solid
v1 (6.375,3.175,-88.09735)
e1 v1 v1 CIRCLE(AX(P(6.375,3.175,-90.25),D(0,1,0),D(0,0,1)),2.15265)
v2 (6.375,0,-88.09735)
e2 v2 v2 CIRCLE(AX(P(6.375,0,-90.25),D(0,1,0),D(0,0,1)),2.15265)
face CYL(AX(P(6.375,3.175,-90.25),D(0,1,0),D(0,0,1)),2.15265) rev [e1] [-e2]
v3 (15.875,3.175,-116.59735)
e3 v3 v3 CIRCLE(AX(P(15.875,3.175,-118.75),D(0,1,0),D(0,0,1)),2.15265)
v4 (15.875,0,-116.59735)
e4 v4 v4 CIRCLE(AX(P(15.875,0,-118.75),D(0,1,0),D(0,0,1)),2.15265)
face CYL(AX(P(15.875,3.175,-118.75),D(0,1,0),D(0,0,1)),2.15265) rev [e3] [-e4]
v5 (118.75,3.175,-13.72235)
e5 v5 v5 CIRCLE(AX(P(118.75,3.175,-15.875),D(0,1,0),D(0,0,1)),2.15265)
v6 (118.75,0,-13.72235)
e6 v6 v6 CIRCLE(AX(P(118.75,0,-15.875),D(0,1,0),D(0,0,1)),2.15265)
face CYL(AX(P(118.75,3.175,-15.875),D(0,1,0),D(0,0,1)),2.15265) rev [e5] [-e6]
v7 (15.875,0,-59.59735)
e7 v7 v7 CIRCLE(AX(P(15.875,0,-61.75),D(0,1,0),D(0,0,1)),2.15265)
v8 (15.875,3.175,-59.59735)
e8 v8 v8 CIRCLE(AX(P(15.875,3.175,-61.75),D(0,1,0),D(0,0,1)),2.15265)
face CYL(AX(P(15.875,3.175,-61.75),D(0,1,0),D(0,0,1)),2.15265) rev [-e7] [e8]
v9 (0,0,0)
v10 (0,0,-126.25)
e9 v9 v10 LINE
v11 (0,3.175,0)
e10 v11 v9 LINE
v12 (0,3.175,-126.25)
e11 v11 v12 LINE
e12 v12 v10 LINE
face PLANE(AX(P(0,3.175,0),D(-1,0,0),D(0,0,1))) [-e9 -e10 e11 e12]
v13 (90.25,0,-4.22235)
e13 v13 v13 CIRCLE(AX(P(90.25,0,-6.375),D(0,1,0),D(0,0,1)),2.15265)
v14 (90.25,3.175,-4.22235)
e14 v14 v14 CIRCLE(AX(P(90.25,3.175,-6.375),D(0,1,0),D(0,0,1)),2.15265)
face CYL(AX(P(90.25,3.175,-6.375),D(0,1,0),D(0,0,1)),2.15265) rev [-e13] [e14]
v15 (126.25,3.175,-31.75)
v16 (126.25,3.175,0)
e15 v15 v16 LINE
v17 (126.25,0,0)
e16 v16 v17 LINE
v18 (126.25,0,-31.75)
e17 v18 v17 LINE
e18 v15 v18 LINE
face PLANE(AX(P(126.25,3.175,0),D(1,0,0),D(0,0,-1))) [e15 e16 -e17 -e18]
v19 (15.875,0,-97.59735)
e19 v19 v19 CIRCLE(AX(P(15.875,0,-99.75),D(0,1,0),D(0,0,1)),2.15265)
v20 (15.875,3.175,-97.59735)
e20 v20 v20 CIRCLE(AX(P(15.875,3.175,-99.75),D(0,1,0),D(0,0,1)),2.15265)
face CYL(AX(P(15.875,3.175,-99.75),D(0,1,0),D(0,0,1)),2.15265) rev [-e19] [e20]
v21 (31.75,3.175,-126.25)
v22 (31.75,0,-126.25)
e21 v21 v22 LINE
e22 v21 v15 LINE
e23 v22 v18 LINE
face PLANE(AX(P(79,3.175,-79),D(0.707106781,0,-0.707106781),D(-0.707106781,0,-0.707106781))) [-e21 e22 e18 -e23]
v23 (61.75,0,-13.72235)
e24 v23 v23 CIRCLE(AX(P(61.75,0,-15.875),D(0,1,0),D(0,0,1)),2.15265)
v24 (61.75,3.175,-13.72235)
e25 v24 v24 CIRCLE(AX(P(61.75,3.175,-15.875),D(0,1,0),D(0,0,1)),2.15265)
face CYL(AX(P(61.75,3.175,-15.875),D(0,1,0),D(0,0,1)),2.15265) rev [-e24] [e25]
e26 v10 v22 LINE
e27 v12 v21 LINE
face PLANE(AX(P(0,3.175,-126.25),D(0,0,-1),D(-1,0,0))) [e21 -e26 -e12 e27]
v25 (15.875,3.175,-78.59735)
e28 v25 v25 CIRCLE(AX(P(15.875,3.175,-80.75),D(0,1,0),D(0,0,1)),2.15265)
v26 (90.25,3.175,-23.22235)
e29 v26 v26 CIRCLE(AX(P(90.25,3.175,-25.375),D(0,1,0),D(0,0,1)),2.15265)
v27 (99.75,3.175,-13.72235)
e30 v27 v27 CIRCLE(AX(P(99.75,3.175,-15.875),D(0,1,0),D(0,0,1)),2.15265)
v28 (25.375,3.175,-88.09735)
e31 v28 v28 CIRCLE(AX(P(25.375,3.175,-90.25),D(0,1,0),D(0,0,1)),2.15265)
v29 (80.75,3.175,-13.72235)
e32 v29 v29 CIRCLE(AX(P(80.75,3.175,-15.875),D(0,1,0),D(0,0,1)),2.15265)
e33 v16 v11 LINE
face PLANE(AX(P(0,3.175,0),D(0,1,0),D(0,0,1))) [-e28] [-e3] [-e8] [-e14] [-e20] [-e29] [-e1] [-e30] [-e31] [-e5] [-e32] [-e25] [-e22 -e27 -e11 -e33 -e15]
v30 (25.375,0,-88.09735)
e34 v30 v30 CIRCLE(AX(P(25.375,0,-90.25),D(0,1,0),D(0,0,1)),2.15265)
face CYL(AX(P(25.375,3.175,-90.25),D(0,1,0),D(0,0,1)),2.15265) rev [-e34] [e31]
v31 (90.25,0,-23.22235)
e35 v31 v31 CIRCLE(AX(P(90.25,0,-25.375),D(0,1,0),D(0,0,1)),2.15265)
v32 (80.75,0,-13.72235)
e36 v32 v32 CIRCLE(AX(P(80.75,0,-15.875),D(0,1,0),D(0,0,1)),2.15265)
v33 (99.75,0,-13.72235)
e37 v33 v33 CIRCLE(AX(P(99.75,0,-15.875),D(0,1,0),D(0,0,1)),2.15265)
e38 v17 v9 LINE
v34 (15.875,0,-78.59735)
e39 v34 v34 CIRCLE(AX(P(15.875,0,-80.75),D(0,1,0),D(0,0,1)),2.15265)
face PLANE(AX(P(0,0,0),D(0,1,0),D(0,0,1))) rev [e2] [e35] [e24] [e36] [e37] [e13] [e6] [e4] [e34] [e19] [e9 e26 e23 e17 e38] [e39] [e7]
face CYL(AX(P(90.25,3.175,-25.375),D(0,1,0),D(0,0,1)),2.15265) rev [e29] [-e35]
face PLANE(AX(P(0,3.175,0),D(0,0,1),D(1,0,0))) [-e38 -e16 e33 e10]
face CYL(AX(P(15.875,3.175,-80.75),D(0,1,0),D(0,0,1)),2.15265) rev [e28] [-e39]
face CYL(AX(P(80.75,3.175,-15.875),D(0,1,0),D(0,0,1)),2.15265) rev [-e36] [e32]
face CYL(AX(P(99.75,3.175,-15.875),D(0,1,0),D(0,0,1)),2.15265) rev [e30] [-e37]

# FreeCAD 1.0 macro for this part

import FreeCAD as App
import Part
import Sketcher
from FreeCAD import Vector
Q = App.Units.Quantity


def add_polygon(sketch, points):
    """Adds a closed chain of lines whose ends are joined by coincident constraints."""
    first, n = sketch.GeometryCount, len(points)
    for a, b in zip(points, points[1:] + points[:1]):
        sketch.addGeometry(Part.LineSegment(App.Vector(*a, 0), App.Vector(*b, 0)), False)
    for i in range(n):
        sketch.addConstraint(Sketcher.Constraint("Coincident", first + i, 2, first + (i + 1) % n, 1))

doc = App.newDocument("Part")
params = doc.addObject("Spreadsheet::Sheet", "Params")
for row, (alias, value) in enumerate([
    ("sketch1_width", "1.25 in"),
    ("pad1_length", "0.125 in"),
    ("hole_diameter", "0.1695 in"),
], start=1):
    params.set(f"A{row}", alias)
    params.set(f"B{row}", "=" + value)
    params.setAlias(f"B{row}", alias)

body = doc.addObject("PartDesign::Body", "Body")

# Sketch on XZ plane
sketch1 = body.newObject("Sketcher::SketchObject", "Sketch")
sketch1.AttachmentSupport = (doc.getObject("XZ_Plane"), [""])
sketch1.MapMode = "FlatFace"
add_polygon(sketch1, [(0, 0), (126, 0), (126, -32), (32, -126), (0, -126)])  # lines 0-4
sketch1.addConstraint(Sketcher.Constraint("Horizontal", 0))
sketch1.addConstraint(Sketcher.Constraint("Vertical", 1))
sketch1.addConstraint(Sketcher.Constraint("Horizontal", 3))
sketch1.addConstraint(Sketcher.Constraint("Vertical", 4))
sketch1.addConstraint(Sketcher.Constraint("Coincident", 4, 2, -1, 1))
sketch1.addConstraint(Sketcher.Constraint("Equal", 3, 1))
sketch1.addConstraint(Sketcher.Constraint("Equal", 0, 4))
sketch1.addConstraint(Sketcher.Constraint("DistanceX", 3, 2, 3, 1, Q("1.25 in")))
sketch1.addConstraint(Sketcher.Constraint("DistanceX", 0, 1, 0, 2, 126.25))
sketch1.setExpression("Constraints[12]", "Params.sketch1_width")
pad1 = body.newObject("PartDesign::Pad", "Pad")
pad1.Profile = sketch1
pad1.setExpression("Length", "Params.pad1_length")
pad1.Reversed = True

# Sketch on XZ plane
sketch2 = body.newObject("Sketcher::SketchObject", "Sketch001")
sketch2.AttachmentSupport = (doc.getObject("XZ_Plane"), [""])
sketch2.MapMode = "FlatFace"
sketch2.AttachmentOffset = App.Placement(Vector(0, 0, -0.125 * 25.4), App.Rotation())
sketch2.addGeometry(Part.Circle(Vector(15.9, -61.8, 0), Vector(0, 0, 1), 2.2), False)
sketch2.addGeometry(Part.Circle(Vector(15.9, -80.8, 0), Vector(0, 0, 1), 2.2), False)
sketch2.addGeometry(Part.Circle(Vector(6.4, -90.2, 0), Vector(0, 0, 1), 2.2), False)
sketch2.addGeometry(Part.Circle(Vector(25.4, -90.2, 0), Vector(0, 0, 1), 2.2), False)
sketch2.addGeometry(Part.Circle(Vector(15.9, -99.8, 0), Vector(0, 0, 1), 2.2), False)
sketch2.addGeometry(Part.Circle(Vector(15.9, -118.8, 0), Vector(0, 0, 1), 2.2), False)
sketch2.addGeometry(Part.Circle(Vector(118.8, -15.9, 0), Vector(0, 0, 1), 2.2), False)
sketch2.addGeometry(Part.Circle(Vector(99.8, -15.9, 0), Vector(0, 0, 1), 2.2), False)
sketch2.addGeometry(Part.Circle(Vector(90.2, -25.4, 0), Vector(0, 0, 1), 2.2), False)
sketch2.addGeometry(Part.Circle(Vector(90.2, -6.4, 0), Vector(0, 0, 1), 2.2), False)
sketch2.addGeometry(Part.Circle(Vector(80.8, -15.9, 0), Vector(0, 0, 1), 2.2), False)
sketch2.addGeometry(Part.Circle(Vector(61.8, -15.9, 0), Vector(0, 0, 1), 2.2), False)
sketch2.addConstraint(Sketcher.Constraint("Equal", 0, 1))
sketch2.addConstraint(Sketcher.Constraint("Equal", 1, 2))
sketch2.addConstraint(Sketcher.Constraint("Equal", 2, 3))
sketch2.addConstraint(Sketcher.Constraint("Equal", 3, 4))
sketch2.addConstraint(Sketcher.Constraint("Equal", 4, 5))
sketch2.addConstraint(Sketcher.Constraint("Equal", 5, 6))
sketch2.addConstraint(Sketcher.Constraint("Equal", 6, 7))
sketch2.addConstraint(Sketcher.Constraint("Equal", 7, 8))
sketch2.addConstraint(Sketcher.Constraint("Equal", 8, 9))
sketch2.addConstraint(Sketcher.Constraint("Equal", 9, 10))
sketch2.addConstraint(Sketcher.Constraint("Equal", 10, 11))
sketch2.addConstraint(Sketcher.Constraint("Horizontal", 2, 3, 3, 3))
sketch2.addConstraint(Sketcher.Constraint("Horizontal", 6, 3, 7, 3))
sketch2.addConstraint(Sketcher.Constraint("Horizontal", 7, 3, 10, 3))
sketch2.addConstraint(Sketcher.Constraint("Horizontal", 10, 3, 11, 3))
sketch2.addConstraint(Sketcher.Constraint("Vertical", 0, 3, 1, 3))
sketch2.addConstraint(Sketcher.Constraint("Vertical", 1, 3, 4, 3))
sketch2.addConstraint(Sketcher.Constraint("Vertical", 4, 3, 5, 3))
sketch2.addConstraint(Sketcher.Constraint("Vertical", 8, 3, 9, 3))
sketch2.addConstraint(Sketcher.Constraint("Diameter", 0, Q("0.1695 in")))
sketch2.addConstraint(Sketcher.Constraint("DistanceX", -1, 1, 0, 3, Q("0.625 in")))
sketch2.addConstraint(Sketcher.Constraint("DistanceY", 6, 3, -1, 1, Q("0.625 in")))
sketch2.addConstraint(Sketcher.Constraint("DistanceY", 0, 3, -1, 1, 61.75))
sketch2.addConstraint(Sketcher.Constraint("DistanceY", 1, 3, -1, 1, 80.75))
sketch2.addConstraint(Sketcher.Constraint("DistanceX", -1, 1, 2, 3, 6.375))
sketch2.addConstraint(Sketcher.Constraint("DistanceY", 2, 3, -1, 1, 90.25))
sketch2.addConstraint(Sketcher.Constraint("DistanceX", -1, 1, 3, 3, 25.375))
sketch2.addConstraint(Sketcher.Constraint("DistanceY", 4, 3, -1, 1, 99.75))
sketch2.addConstraint(Sketcher.Constraint("DistanceY", 5, 3, -1, 1, 118.75))
sketch2.addConstraint(Sketcher.Constraint("DistanceX", -1, 1, 6, 3, 118.75))
sketch2.addConstraint(Sketcher.Constraint("DistanceX", -1, 1, 7, 3, 99.75))
sketch2.addConstraint(Sketcher.Constraint("DistanceX", -1, 1, 8, 3, 90.25))
sketch2.addConstraint(Sketcher.Constraint("DistanceY", 8, 3, -1, 1, 25.375))
sketch2.addConstraint(Sketcher.Constraint("DistanceY", 9, 3, -1, 1, 6.375))
sketch2.addConstraint(Sketcher.Constraint("DistanceX", -1, 1, 10, 3, 80.75))
sketch2.addConstraint(Sketcher.Constraint("DistanceX", -1, 1, 11, 3, 61.75))
doc.recompute()
hole = body.newObject("PartDesign::Hole", "Hole")
hole.Profile = sketch2
hole.ThreadType = "None"
hole.setExpression("Diameter", "Params.hole_diameter")
hole.DepthType = "ThroughAll"
hole.Reversed = True

doc.recompute()
